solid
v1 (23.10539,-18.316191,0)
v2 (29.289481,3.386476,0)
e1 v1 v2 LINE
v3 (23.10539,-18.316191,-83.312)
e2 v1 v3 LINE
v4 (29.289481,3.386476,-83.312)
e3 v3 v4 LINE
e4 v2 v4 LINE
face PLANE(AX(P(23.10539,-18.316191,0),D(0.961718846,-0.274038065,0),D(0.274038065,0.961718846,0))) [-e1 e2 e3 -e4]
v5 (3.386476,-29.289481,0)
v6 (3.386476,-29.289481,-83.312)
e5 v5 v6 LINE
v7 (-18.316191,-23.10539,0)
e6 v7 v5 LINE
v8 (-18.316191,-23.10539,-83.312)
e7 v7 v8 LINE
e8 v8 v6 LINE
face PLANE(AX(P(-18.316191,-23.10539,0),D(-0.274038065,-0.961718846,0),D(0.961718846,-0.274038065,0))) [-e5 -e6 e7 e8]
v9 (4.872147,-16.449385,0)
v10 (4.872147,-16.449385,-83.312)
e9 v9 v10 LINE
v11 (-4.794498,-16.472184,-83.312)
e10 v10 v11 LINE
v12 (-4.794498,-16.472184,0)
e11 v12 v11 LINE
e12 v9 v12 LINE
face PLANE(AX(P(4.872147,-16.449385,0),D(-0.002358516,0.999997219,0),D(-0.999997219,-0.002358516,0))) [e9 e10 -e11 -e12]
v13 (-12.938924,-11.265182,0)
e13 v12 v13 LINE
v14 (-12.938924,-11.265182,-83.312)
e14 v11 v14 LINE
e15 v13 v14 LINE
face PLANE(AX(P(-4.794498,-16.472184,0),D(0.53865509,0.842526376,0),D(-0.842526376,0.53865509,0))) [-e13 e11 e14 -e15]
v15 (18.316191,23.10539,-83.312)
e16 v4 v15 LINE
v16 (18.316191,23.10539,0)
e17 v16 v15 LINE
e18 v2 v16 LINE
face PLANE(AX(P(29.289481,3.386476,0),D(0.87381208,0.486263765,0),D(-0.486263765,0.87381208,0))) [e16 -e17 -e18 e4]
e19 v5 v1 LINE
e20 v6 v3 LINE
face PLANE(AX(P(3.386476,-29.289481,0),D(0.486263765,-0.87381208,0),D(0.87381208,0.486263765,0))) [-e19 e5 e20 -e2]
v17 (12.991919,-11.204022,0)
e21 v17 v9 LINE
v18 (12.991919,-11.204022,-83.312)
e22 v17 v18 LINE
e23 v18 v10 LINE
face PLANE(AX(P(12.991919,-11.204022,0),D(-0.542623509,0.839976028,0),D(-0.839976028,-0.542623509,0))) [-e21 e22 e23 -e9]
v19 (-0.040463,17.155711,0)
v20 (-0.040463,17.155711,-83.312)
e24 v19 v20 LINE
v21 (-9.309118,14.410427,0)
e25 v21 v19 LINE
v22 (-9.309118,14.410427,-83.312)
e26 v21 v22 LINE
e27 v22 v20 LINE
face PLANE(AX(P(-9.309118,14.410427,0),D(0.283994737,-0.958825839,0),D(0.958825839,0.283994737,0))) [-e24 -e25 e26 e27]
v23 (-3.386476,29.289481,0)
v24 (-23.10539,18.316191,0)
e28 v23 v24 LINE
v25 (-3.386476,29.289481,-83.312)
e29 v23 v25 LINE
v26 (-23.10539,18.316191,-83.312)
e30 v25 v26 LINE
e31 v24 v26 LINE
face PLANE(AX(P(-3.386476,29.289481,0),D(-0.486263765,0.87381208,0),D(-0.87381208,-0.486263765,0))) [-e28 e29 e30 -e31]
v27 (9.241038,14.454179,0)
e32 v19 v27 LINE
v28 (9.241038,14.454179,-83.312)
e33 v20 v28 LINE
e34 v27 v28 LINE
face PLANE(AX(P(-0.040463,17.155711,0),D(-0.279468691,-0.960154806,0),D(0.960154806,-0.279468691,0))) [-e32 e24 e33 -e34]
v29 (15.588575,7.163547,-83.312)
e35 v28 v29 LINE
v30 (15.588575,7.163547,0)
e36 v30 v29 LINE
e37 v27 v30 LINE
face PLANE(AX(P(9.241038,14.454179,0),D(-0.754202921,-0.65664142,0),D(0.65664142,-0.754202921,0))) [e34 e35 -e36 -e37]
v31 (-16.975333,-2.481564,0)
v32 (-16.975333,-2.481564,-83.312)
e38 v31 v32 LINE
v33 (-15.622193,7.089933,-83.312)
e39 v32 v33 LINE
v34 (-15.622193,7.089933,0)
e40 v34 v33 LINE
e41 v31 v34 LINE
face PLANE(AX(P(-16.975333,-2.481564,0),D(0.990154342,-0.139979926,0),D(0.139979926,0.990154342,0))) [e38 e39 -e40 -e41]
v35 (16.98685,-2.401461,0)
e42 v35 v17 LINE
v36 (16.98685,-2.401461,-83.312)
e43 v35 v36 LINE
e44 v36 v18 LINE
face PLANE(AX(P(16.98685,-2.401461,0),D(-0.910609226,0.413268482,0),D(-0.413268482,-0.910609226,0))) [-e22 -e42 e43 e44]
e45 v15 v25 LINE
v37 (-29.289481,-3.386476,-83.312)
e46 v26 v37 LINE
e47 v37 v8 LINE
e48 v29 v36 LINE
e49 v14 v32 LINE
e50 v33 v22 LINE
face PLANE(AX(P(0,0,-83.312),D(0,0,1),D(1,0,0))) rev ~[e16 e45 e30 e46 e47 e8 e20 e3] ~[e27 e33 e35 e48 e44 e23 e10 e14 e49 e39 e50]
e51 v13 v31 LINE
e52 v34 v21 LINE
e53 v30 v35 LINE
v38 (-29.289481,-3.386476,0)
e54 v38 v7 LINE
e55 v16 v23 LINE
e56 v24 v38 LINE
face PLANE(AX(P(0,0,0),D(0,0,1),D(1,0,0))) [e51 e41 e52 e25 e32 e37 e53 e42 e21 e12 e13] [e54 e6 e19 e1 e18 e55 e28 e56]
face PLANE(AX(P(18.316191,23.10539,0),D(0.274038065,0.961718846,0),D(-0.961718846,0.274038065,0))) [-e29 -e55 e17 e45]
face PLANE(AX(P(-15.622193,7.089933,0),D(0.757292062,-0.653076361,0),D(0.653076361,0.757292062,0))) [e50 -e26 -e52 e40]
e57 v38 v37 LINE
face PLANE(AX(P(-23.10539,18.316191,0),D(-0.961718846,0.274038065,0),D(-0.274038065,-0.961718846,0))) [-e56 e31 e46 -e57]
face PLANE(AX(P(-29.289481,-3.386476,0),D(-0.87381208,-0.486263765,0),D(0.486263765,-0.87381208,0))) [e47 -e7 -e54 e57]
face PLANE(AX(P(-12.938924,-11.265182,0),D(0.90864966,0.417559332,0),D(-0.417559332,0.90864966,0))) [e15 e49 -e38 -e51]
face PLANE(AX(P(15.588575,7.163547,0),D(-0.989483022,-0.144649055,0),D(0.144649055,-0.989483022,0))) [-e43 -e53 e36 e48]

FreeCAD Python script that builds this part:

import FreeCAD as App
import Part
import Sketcher
from FreeCAD import Vector
Q = App.Units.Quantity

doc = App.newDocument("Part")
params = doc.addObject("Spreadsheet::Sheet", "Params")
for row, (alias, value) in enumerate([
    ("pad1_length", "3.28 in"),
], start=1):
    params.set(f"A{row}", alias)
    params.set(f"B{row}", "=" + value)
    params.setAlias(f"B{row}", alias)

body = doc.addObject("PartDesign::Body", "Body")

# Sketch on XY plane
sketch1 = doc.addObject("Sketcher::SketchObject", "Sketch")
body.addObject(sketch1)
sketch1.AttachmentSupport = (doc.XY_Plane, [""])
sketch1.MapMode = "FlatFace"
sketch1.addGeometry(Part.LineSegment(Vector(3.386476, -29.289481, 0), Vector(23.10539, -18.316191, 0)), False)
sketch1.addGeometry(Part.LineSegment(Vector(23.10539, -18.316191, 0), Vector(29.289481, 3.386476, 0)), False)
sketch1.addGeometry(Part.LineSegment(Vector(29.289481, 3.386476, 0), Vector(18.316191, 23.10539, 0)), False)
sketch1.addGeometry(Part.LineSegment(Vector(18.316191, 23.10539, 0), Vector(-3.386476, 29.289481, 0)), False)
sketch1.addGeometry(Part.LineSegment(Vector(-3.386476, 29.289481, 0), Vector(-23.10539, 18.316191, 0)), False)
sketch1.addGeometry(Part.LineSegment(Vector(-23.10539, 18.316191, 0), Vector(-29.289481, -3.386476, 0)), False)
sketch1.addGeometry(Part.LineSegment(Vector(-29.289481, -3.386476, 0), Vector(-18.316191, -23.10539, 0)), False)
sketch1.addGeometry(Part.LineSegment(Vector(-18.316191, -23.10539, 0), Vector(3.386476, -29.289481, 0)), False)
sketch1.addGeometry(Part.LineSegment(Vector(-16.975333, -2.481564, 0), Vector(-15.622193, 7.089933, 0)), False)
sketch1.addGeometry(Part.LineSegment(Vector(-15.622193, 7.089933, 0), Vector(-9.309118, 14.410427, 0)), False)
sketch1.addGeometry(Part.LineSegment(Vector(-9.309118, 14.410427, 0), Vector(-0.040463, 17.155711, 0)), False)
sketch1.addGeometry(Part.LineSegment(Vector(-0.040463, 17.155711, 0), Vector(9.241038, 14.454179, 0)), False)
sketch1.addGeometry(Part.LineSegment(Vector(9.241038, 14.454179, 0), Vector(15.588575, 7.163547, 0)), False)
sketch1.addGeometry(Part.LineSegment(Vector(15.588575, 7.163547, 0), Vector(16.98685, -2.401461, 0)), False)
sketch1.addGeometry(Part.LineSegment(Vector(16.98685, -2.401461, 0), Vector(12.991919, -11.204022, 0)), False)
sketch1.addGeometry(Part.LineSegment(Vector(12.991919, -11.204022, 0), Vector(4.872147, -16.449385, 0)), False)
sketch1.addGeometry(Part.LineSegment(Vector(4.872147, -16.449385, 0), Vector(-4.794498, -16.472184, 0)), False)
sketch1.addGeometry(Part.LineSegment(Vector(-4.794498, -16.472184, 0), Vector(-12.938924, -11.265182, 0)), False)
sketch1.addGeometry(Part.LineSegment(Vector(-12.938924, -11.265182, 0), Vector(-16.975333, -2.481564, 0)), False)
sketch1.addConstraint(Sketcher.Constraint("Coincident", 0, 2, 1, 1))
sketch1.addConstraint(Sketcher.Constraint("Coincident", 1, 2, 2, 1))
sketch1.addConstraint(Sketcher.Constraint("Coincident", 2, 2, 3, 1))
sketch1.addConstraint(Sketcher.Constraint("Coincident", 3, 2, 4, 1))
sketch1.addConstraint(Sketcher.Constraint("Coincident", 4, 2, 5, 1))
sketch1.addConstraint(Sketcher.Constraint("Coincident", 5, 2, 6, 1))
sketch1.addConstraint(Sketcher.Constraint("Coincident", 6, 2, 7, 1))
sketch1.addConstraint(Sketcher.Constraint("Coincident", 7, 2, 0, 1))
sketch1.addConstraint(Sketcher.Constraint("Coincident", 8, 2, 9, 1))
sketch1.addConstraint(Sketcher.Constraint("Coincident", 9, 2, 10, 1))
sketch1.addConstraint(Sketcher.Constraint("Coincident", 10, 2, 11, 1))
sketch1.addConstraint(Sketcher.Constraint("Coincident", 11, 2, 12, 1))
sketch1.addConstraint(Sketcher.Constraint("Coincident", 12, 2, 13, 1))
sketch1.addConstraint(Sketcher.Constraint("Coincident", 13, 2, 14, 1))
sketch1.addConstraint(Sketcher.Constraint("Coincident", 14, 2, 15, 1))
sketch1.addConstraint(Sketcher.Constraint("Coincident", 15, 2, 16, 1))
sketch1.addConstraint(Sketcher.Constraint("Coincident", 16, 2, 17, 1))
sketch1.addConstraint(Sketcher.Constraint("Coincident", 17, 2, 18, 1))
sketch1.addConstraint(Sketcher.Constraint("Coincident", 18, 2, 8, 1))
sketch1.addConstraint(Sketcher.Constraint("Symmetric", 0, 2, 4, 2, -1, 1))
sketch1.addConstraint(Sketcher.Constraint("Symmetric", 1, 2, 5, 2, -1, 1))
sketch1.addConstraint(Sketcher.Constraint("Symmetric", 2, 2, 6, 2, -1, 1))
sketch1.addConstraint(Sketcher.Constraint("Symmetric", 3, 2, 7, 2, -1, 1))
sketch1.addConstraint(Sketcher.Constraint("Perpendicular", 0, 2))
sketch1.addConstraint(Sketcher.Constraint("Perpendicular", 1, 3))
sketch1.addConstraint(Sketcher.Constraint("Equal", 0, 1))
sketch1.addConstraint(Sketcher.Constraint("Equal", 1, 2))
sketch1.addConstraint(Sketcher.Constraint("Equal", 2, 3))
sketch1.addConstraint(Sketcher.Constraint("Equal", 8, 9))
sketch1.addConstraint(Sketcher.Constraint("Equal", 9, 10))
sketch1.addConstraint(Sketcher.Constraint("Equal", 10, 11))
sketch1.addConstraint(Sketcher.Constraint("Equal", 11, 12))
sketch1.addConstraint(Sketcher.Constraint("Equal", 12, 13))
sketch1.addConstraint(Sketcher.Constraint("Equal", 13, 14))
sketch1.addConstraint(Sketcher.Constraint("Equal", 14, 15))
sketch1.addConstraint(Sketcher.Constraint("Equal", 15, 16))
sketch1.addConstraint(Sketcher.Constraint("Equal", 16, 17))
sketch1.addConstraint(Sketcher.Constraint("Equal", 17, 18))
sketch1.addConstraint(Sketcher.Constraint("DistanceY", 16, 2, 17, 2, Q("0.2050001 in")))
sketch1.addConstraint(Sketcher.Constraint("DistanceX", 2, 2, 0, 2, 4.789199))
sketch1.addConstraint(Sketcher.Constraint("DistanceX", 6, 2, 8, 2, 2.693998))
sketch1.addConstraint(Sketcher.Constraint("DistanceX", 10, 2, 11, 2, 9.281501))
sketch1.addConstraint(Sketcher.Constraint("DistanceY", 11, 2, 3, 2, 14.835302))
sketch1.addConstraint(Sketcher.Constraint("DistanceY", 16, 2, 15, 2, 0.022799))
sketch1.addConstraint(Sketcher.Constraint("Distance", 0, 22.566539))
sketch1.addConstraint(Sketcher.Constraint("Distance", 8, 9.666672))
sketch1.addConstraint(Sketcher.Constraint("DistanceX", -1, 1, 0, 2, 23.10539))
sketch1.addConstraint(Sketcher.Constraint("DistanceX", -1, 1, 13, 2, 16.98685))
sketch1.addConstraint(Sketcher.Constraint("DistanceY", 13, 2, -1, 1, 2.401461))
sketch1.addConstraint(Sketcher.Constraint("DistanceX", -1, 1, 14, 2, 12.991919))
sketch1.addConstraint(Sketcher.Constraint("DistanceY", 17, 2, -1, 1, 11.265182))
sketch1.addConstraint(Sketcher.Constraint("DistanceY", 5, 2, 8, 2, 10.476409))
sketch1.addConstraint(Sketcher.Constraint("DistanceX", 9, 2, 3, 2, 5.922642))
pad1 = doc.addObject("PartDesign::Pad", "Pad")
body.addObject(pad1)
pad1.Profile = sketch1
pad1.setExpression("Length", "Params.pad1_length")
pad1.Reversed = True

doc.recompute()
